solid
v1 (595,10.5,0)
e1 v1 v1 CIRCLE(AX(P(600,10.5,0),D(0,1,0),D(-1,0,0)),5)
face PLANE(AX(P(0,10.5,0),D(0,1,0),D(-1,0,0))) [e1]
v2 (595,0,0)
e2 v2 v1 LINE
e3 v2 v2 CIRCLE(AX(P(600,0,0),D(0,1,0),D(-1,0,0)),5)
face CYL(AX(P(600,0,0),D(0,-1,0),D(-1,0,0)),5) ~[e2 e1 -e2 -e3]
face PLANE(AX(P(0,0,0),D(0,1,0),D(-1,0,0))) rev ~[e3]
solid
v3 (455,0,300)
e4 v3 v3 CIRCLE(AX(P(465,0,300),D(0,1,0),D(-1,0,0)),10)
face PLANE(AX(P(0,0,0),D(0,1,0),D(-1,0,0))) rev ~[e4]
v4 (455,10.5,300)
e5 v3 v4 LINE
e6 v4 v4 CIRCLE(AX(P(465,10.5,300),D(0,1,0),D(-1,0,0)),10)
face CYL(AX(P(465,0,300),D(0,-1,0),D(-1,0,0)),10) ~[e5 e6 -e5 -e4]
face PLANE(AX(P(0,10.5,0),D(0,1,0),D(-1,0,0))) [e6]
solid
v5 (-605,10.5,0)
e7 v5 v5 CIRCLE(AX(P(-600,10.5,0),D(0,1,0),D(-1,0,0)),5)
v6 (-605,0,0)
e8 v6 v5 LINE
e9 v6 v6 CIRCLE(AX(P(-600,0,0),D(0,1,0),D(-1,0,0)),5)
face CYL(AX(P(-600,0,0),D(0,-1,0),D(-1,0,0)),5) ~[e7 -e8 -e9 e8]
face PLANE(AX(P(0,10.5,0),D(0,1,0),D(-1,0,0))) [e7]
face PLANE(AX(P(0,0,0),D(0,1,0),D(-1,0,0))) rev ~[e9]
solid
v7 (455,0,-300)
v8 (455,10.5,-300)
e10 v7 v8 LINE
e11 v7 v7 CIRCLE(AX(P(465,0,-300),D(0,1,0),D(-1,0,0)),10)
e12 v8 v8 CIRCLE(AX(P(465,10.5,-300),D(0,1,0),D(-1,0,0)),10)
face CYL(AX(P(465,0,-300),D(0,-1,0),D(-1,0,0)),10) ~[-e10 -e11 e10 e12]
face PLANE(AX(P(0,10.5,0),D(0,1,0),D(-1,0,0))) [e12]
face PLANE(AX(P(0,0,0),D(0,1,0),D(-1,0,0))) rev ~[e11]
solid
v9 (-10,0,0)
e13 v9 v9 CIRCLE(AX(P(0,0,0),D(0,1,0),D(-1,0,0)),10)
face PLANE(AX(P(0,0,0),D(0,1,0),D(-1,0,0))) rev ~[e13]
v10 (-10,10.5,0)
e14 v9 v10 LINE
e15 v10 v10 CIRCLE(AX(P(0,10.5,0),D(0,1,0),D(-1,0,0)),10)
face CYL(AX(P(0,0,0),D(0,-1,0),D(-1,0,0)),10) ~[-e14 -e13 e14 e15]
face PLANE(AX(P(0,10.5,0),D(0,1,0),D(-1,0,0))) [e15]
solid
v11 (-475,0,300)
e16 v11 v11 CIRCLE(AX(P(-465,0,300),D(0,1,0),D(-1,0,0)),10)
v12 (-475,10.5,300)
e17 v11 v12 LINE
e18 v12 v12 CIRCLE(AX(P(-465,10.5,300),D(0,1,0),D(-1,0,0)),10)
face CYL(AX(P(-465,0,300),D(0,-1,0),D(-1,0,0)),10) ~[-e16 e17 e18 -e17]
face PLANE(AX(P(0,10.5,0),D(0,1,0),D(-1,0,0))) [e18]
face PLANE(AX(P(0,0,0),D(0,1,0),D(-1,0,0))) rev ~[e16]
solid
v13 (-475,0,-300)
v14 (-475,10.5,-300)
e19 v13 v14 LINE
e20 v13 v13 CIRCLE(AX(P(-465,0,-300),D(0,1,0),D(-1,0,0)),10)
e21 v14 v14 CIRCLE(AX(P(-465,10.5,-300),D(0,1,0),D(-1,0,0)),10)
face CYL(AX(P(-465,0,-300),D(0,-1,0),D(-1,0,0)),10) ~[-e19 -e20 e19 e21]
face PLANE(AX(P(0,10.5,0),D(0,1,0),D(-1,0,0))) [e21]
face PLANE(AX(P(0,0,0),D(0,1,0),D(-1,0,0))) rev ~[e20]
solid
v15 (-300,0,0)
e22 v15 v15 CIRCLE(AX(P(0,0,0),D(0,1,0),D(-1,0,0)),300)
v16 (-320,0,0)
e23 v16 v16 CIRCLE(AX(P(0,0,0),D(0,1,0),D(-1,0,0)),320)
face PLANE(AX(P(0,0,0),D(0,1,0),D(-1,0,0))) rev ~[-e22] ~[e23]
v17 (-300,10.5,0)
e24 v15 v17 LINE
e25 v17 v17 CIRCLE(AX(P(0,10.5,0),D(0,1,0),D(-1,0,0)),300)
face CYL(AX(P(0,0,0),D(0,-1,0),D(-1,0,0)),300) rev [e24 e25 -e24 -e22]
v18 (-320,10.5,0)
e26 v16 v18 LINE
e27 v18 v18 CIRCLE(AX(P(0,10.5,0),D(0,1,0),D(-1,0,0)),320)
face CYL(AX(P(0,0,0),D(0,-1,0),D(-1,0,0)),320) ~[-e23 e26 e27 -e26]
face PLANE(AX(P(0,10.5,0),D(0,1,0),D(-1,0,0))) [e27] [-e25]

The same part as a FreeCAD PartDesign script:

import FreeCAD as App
import Part
import Sketcher

V = App.Vector

doc = App.newDocument("Part")
params = doc.addObject("Spreadsheet::Sheet", "Params")
for row, (alias, value) in enumerate([
    ("sketch1_diameter", "600 mm"),
    ("sketch1_diameter2", "20 mm"),
    ("sketch1_diameter3", "10 mm"),
    ("sketch1_diameter4", "640 mm"),
    ("pad1_length", "10.5 mm"),
], start=1):
    params.set(f"A{row}", alias)
    params.set(f"B{row}", "=" + value)
    params.setAlias(f"B{row}", alias)

body = doc.addObject("PartDesign::Body", "Body")
body.AllowCompound = True

sketch1 = body.newObject("Sketcher::SketchObject", "Sketch")
sketch1.AttachmentSupport = (doc.getObject("XZ_Plane"), [""])
sketch1.MapMode = "FlatFace"
sketch1.addGeometry([
    Part.Circle(V(0, 0, 0), V(0, 0, 1), 320),
    Part.Circle(V(0, 0, 0), V(0, 0, 1), 300),
    Part.Circle(V(-465, -300, 0), V(0, 0, 1), 10),
    Part.Circle(V(-465, 300, 0), V(0, 0, 1), 10),
    Part.Circle(V(465, -300, 0), V(0, 0, 1), 10),
    Part.Circle(V(465, 300, 0), V(0, 0, 1), 10),
    Part.Circle(V(0, 0, 0), V(0, 0, 1), 10),
    Part.Circle(V(-600, 0, 0), V(0, 0, 1), 5),
    Part.Circle(V(600, 0, 0), V(0, 0, 1), 5),
], False)
sketch1.addConstraint([
    Sketcher.Constraint("Coincident", 0, 3, -1, 1),
    Sketcher.Constraint("Coincident", 1, 3, -1, 1),
    Sketcher.Constraint("Coincident", 6, 3, -1, 1),
    Sketcher.Constraint("Equal", 2, 3),
    Sketcher.Constraint("Equal", 3, 4),
    Sketcher.Constraint("Equal", 4, 5),
    Sketcher.Constraint("Equal", 5, 6),
    Sketcher.Constraint("Equal", 7, 8),
    Sketcher.Constraint("Symmetric", 3, 3, 4, 3, -1, 1),
    Sketcher.Constraint("Symmetric", 2, 3, 5, 3, -1, 1),
    Sketcher.Constraint("Symmetric", 7, 3, 8, 3, -1, 1),
    Sketcher.Constraint("Symmetric", 2, 3, 4, 3, -2),
    Sketcher.Constraint("PointOnObject", 7, 3, -1),
    Sketcher.Constraint("Diameter", 1, 600.0),
    Sketcher.Constraint("Diameter", 2, 20.0),
    Sketcher.Constraint("Diameter", 7, 10.0),
    Sketcher.Constraint("Diameter", 0, 640.0),
    Sketcher.Constraint("DistanceX", 7, 3, -1, 1, 600.0),
    Sketcher.Constraint("DistanceY", 2, 3, 3, 3, 600.0),
    Sketcher.Constraint("DistanceX", 2, 3, -1, 1, 465.0),
])
sketch1.setExpression("Constraints[13]", "Params.sketch1_diameter")
sketch1.setExpression("Constraints[14]", "Params.sketch1_diameter2")
sketch1.setExpression("Constraints[15]", "Params.sketch1_diameter3")
sketch1.setExpression("Constraints[16]", "Params.sketch1_diameter4")
pad1 = body.newObject("PartDesign::Pad", "Pad")
pad1.Profile = sketch1
pad1.setExpression("Length", "Params.pad1_length")
pad1.Reversed = True

doc.recompute()
